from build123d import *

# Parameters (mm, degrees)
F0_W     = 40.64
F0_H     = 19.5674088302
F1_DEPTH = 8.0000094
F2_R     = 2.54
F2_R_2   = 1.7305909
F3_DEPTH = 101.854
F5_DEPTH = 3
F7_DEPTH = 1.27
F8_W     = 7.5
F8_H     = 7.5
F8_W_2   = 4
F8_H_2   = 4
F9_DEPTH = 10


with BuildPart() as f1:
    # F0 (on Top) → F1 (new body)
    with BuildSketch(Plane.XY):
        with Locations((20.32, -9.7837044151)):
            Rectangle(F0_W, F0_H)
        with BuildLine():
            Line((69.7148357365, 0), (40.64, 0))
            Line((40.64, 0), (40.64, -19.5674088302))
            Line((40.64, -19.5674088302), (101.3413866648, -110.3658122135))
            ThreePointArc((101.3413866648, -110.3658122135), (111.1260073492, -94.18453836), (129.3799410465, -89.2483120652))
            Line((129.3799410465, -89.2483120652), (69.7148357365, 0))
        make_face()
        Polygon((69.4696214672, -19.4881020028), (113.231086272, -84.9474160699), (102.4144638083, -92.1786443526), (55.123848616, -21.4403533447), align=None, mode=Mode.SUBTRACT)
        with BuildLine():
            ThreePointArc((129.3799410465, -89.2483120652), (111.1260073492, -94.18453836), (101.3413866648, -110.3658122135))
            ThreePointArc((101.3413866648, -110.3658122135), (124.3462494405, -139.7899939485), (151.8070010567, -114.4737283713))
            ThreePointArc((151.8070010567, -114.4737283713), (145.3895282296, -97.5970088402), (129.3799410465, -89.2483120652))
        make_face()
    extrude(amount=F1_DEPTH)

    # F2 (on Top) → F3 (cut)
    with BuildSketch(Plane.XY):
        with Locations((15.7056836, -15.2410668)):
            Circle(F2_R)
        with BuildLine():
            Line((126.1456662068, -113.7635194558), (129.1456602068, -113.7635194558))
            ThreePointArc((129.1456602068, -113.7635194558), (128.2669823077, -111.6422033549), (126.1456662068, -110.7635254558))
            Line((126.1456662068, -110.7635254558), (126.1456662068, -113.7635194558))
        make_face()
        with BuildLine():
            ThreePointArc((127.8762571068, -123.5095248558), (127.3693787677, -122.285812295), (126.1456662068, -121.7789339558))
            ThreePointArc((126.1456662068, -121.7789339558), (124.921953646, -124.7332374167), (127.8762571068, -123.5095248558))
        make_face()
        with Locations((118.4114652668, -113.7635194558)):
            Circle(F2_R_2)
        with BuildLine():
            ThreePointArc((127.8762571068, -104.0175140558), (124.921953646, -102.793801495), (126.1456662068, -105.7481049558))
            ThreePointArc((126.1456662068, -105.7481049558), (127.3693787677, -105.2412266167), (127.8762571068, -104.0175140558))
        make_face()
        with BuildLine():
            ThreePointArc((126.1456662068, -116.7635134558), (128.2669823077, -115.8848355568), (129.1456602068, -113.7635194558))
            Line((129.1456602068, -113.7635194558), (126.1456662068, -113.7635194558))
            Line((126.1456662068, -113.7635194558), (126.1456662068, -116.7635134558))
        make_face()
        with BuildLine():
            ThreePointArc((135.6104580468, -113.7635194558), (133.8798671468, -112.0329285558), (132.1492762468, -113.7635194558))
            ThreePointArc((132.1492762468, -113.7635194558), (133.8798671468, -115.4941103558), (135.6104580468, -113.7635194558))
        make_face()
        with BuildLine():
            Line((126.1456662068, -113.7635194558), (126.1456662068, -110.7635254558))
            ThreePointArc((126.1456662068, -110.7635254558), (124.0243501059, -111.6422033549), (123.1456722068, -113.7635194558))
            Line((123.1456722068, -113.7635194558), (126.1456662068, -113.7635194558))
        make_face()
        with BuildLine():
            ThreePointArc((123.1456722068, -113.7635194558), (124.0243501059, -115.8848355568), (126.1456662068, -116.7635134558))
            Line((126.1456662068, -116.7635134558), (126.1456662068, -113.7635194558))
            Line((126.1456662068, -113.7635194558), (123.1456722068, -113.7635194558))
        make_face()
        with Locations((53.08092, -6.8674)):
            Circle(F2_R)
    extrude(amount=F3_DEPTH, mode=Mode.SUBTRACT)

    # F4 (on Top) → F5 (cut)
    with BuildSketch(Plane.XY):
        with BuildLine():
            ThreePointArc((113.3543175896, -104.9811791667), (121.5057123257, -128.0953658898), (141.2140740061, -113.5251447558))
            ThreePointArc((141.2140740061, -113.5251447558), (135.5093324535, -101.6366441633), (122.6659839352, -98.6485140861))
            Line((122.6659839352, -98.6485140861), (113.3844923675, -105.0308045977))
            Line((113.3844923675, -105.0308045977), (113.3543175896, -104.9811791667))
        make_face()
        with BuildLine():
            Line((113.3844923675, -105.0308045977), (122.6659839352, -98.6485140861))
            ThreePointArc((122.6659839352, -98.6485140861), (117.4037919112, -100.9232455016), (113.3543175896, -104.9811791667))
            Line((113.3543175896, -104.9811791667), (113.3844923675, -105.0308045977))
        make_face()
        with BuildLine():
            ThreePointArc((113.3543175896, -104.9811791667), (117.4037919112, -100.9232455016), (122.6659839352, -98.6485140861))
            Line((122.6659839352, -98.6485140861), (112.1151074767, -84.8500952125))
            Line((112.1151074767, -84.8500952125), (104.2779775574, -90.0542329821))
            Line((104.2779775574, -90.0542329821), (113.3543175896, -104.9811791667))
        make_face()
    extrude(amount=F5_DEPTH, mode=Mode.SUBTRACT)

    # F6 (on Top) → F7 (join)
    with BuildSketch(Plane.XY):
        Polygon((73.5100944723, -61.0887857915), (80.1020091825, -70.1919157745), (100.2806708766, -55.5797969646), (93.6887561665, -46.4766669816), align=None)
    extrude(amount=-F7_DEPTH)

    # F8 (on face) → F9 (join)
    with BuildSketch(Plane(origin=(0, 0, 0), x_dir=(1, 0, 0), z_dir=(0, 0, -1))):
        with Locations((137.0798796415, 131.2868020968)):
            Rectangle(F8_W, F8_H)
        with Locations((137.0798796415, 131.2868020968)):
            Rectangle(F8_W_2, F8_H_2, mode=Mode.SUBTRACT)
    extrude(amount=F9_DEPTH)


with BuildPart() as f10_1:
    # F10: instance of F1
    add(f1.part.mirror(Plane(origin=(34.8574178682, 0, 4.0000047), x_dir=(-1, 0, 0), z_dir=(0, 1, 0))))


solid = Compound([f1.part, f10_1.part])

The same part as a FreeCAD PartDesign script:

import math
import FreeCAD as App
import Part
import Sketcher

V = App.Vector
Q = App.Units.Quantity

doc = App.newDocument("Part")
params = doc.addObject("Spreadsheet::Sheet", "Params")
for row, (alias, value) in enumerate([
    ("sketch1_radius", "1 in"),
    ("sketch1_width", "1.6 in"),
    ("sketch1_length", "4.3 in"),
    ("sketch1_length2", "3.1 in"),
    ("sketch1_length3", "0.57 in"),
    ("pad1_length", "8.000009 mm"),
    ("sketch2_diameter", "0.2 in"),
    ("pocket1_length", "4.01 in"),
    ("sketch3_radius", "0.6 in"),
    ("pocket2_length", "3 mm"),
    ("pad2_length", "0.05 in"),
    ("pad3_length", "10 mm"),
], start=1):
    params.set(f"A{row}", alias)
    params.set(f"B{row}", "=" + value)
    params.setAlias(f"B{row}", alias)

body = doc.addObject("PartDesign::Body", "Body")

# Sketch on XY plane
sketch1 = body.newObject("Sketcher::SketchObject", "Sketch")
sketch1.AttachmentSupport = (doc.getObject("XY_Plane"), [""])
sketch1.MapMode = "FlatFace"
sketch1.addGeometry([
    Part.LineSegment(V(0, 0, 0), V(0, -20, 0)),  # 0
    Part.LineSegment(V(0, -20, 0), V(41, -20, 0)),  # 1
    Part.LineSegment(V(41, -20, 0), V(101, -110, 0)),  # 2
    Part.ArcOfCircle(Part.Circle(V(126, -114, 0), V(0, 0, 1), 25), math.radians(171), math.radians(360)),  # 3
    Part.ArcOfCircle(Part.Circle(V(126, -114, 0), V(0, 0, 1), 25), math.radians(0), math.radians(83)),  # 4
    Part.LineSegment(V(129, -89, 0), V(70, 0, 0)),  # 5
    Part.LineSegment(V(70, 0, 0), V(0, 0, 0)),  # 6
    Part.LineSegment(V(55, -21, 0), V(69, -19, 0)),  # 7
    Part.LineSegment(V(69, -19, 0), V(113, -85, 0)),  # 8
    Part.LineSegment(V(113, -85, 0), V(102, -92, 0)),  # 9
    Part.LineSegment(V(102, -92, 0), V(55, -21, 0)),  # 10
], False)
sketch1.addConstraint([
    Sketcher.Constraint("Coincident", 0, 2, 1, 1),
    Sketcher.Constraint("Coincident", 1, 2, 2, 1),
    Sketcher.Constraint("Coincident", 2, 2, 3, 1),
    Sketcher.Constraint("Tangent", 3, 2, 4, 1),
    Sketcher.Constraint("Coincident", 4, 2, 5, 1),
    Sketcher.Constraint("Coincident", 5, 2, 6, 1),
    Sketcher.Constraint("Coincident", 6, 2, 0, 1),
    Sketcher.Constraint("Coincident", 7, 2, 8, 1),
    Sketcher.Constraint("Coincident", 8, 2, 9, 1),
    Sketcher.Constraint("Coincident", 9, 2, 10, 1),
    Sketcher.Constraint("Coincident", 10, 2, 7, 1),
    Sketcher.Constraint("Vertical", 0),
    Sketcher.Constraint("Horizontal", 1),
    Sketcher.Constraint("Horizontal", 6),
    Sketcher.Constraint("Coincident", 6, 2, -1, 1),
    Sketcher.Constraint("Equal", 3, 4),
    Sketcher.Constraint("Parallel", 2, 5),
    Sketcher.Constraint("Parallel", 5, 8),
    Sketcher.Constraint("Perpendicular", 8, 9),
    Sketcher.Constraint("Perpendicular", 9, 10),
    Sketcher.Constraint("Horizontal", 4, 3, 3, 2),
    Sketcher.Constraint("Radius", 3, Q("1 in")),
    Sketcher.Constraint("DistanceX", 1, 1, 1, 2, Q("1.6 in")),
    Sketcher.Constraint("Distance", 2, Q("4.3 in")),
    Sketcher.Constraint("Distance", 8, Q("3.1 in")),
    Sketcher.Constraint("Distance", 7, Q("0.57 in")),
    Sketcher.Constraint("Distance", 10, Q("3.35 in")),
    Sketcher.Constraint("DistanceY", 0, 2, 0, 1, Q("19.567409 mm")),
    Sketcher.Constraint("DistanceX", -1, 1, 3, 3, Q("126.407001 mm")),
    Sketcher.Constraint("DistanceY", 2, 2, 4, 2, Q("21.1175 mm")),
    Sketcher.Constraint("DistanceX", 2, 2, 8, 2, Q("11.8897 mm")),
    Sketcher.Constraint("DistanceX", 6, 2, 6, 1, Q("69.714836 mm")),
    Sketcher.Constraint("DistanceY", 4, 2, 7, 2, Q("69.76021 mm")),
])
sketch1.setExpression("Constraints[21]", "Params.sketch1_radius")
sketch1.setExpression("Constraints[22]", "Params.sketch1_width")
sketch1.setExpression("Constraints[23]", "Params.sketch1_length")
sketch1.setExpression("Constraints[24]", "Params.sketch1_length2")
sketch1.setExpression("Constraints[25]", "Params.sketch1_length3")
pad1 = body.newObject("PartDesign::Pad", "Pad")
pad1.Profile = sketch1
pad1.setExpression("Length", "Params.pad1_length")

# Sketch on XY plane
sketch2 = body.newObject("Sketcher::SketchObject", "Sketch001")
sketch2.AttachmentSupport = (doc.getObject("XY_Plane"), [""])
sketch2.MapMode = "FlatFace"
sketch2.addGeometry([
    Part.Circle(V(15.7, -15.2, 0), V(0, 0, 1), 2.5),  # 0
    Part.ArcOfCircle(Part.Circle(V(126.1, -113.8, 0), V(0, 0, 1), 3), math.radians(0), math.radians(90)),  # 1
    Part.ArcOfCircle(Part.Circle(V(126.1, -113.8, 0), V(0, 0, 1), 3), math.radians(90), math.radians(180)),  # 2
    Part.ArcOfCircle(Part.Circle(V(126.1, -113.8, 0), V(0, 0, 1), 3), math.radians(180), math.radians(270)),  # 3
    Part.ArcOfCircle(Part.Circle(V(126.1, -113.8, 0), V(0, 0, 1), 3), math.radians(-90), math.radians(0)),  # 4
    Part.Circle(V(126.1, -123.5, 0), V(0, 0, 1), 1.7),  # 5
    Part.Circle(V(118.4, -113.8, 0), V(0, 0, 1), 1.7),  # 6
    Part.ArcOfCircle(Part.Circle(V(126.1, -104, 0), V(0, 0, 1), 1.7), math.radians(0), math.radians(270)),  # 7
    Part.ArcOfCircle(Part.Circle(V(126.1, -104, 0), V(0, 0, 1), 1.7), math.radians(-90), math.radians(0)),  # 8
    Part.Circle(V(133.9, -113.8, 0), V(0, 0, 1), 1.7),  # 9
    Part.Circle(V(53.1, -6.9, 0), V(0, 0, 1), 2.5),  # 10
], False)
sketch2.addConstraint([
    Sketcher.Constraint("Tangent", 1, 2, 2, 1),
    Sketcher.Constraint("Tangent", 2, 2, 3, 1),
    Sketcher.Constraint("Tangent", 3, 2, 4, 1),
    Sketcher.Constraint("Tangent", 4, 2, 1, 1),
    Sketcher.Constraint("Tangent", 7, 1, 8, 2),
    Sketcher.Constraint("Coincident", 8, 1, 7, 2),
    Sketcher.Constraint("Equal", 1, 2),
    Sketcher.Constraint("Equal", 5, 6),
    Sketcher.Constraint("Equal", 6, 7),
    Sketcher.Constraint("Equal", 8, 9),
    Sketcher.Constraint("Equal", 0, 10),
    Sketcher.Constraint("Horizontal", 4, 3, 6, 3),
    Sketcher.Constraint("Horizontal", 6, 3, 9, 3),
    Sketcher.Constraint("Horizontal", 9, 3, 2, 2),
    Sketcher.Constraint("Horizontal", 2, 2, 4, 2),
    Sketcher.Constraint("Horizontal", 8, 3, 7, 1),
    Sketcher.Constraint("Vertical", 4, 3, 5, 3),
    Sketcher.Constraint("Vertical", 5, 3, 7, 3),
    Sketcher.Constraint("Vertical", 8, 3, 1, 2),
    Sketcher.Constraint("Vertical", 1, 2, 3, 2),
    Sketcher.Constraint("Vertical", 3, 2, 8, 1),
    Sketcher.Constraint("Diameter", 0, Q("0.2 in")),
    Sketcher.Constraint("Diameter", 5, Q("3.461182 mm")),
    Sketcher.Constraint("DistanceX", -1, 1, 10, 3, Q("2.0898 in")),
    Sketcher.Constraint("Radius", 1, Q("2.999994 mm")),
    Sketcher.Constraint("DistanceY", 10, 3, -1, 1, Q("6.8674 mm")),
    Sketcher.Constraint("DistanceX", 6, 3, 1, 3, Q("7.734201 mm")),
    Sketcher.Constraint("DistanceX", 1, 3, 9, 3, Q("7.734201 mm")),
    Sketcher.Constraint("DistanceY", 1, 3, -1, 1, Q("113.763519 mm")),
    Sketcher.Constraint("DistanceX", -1, 1, 4, 2, Q("129.14566 mm")),
    Sketcher.Constraint("DistanceY", 5, 3, 0, 3, Q("108.268458 mm")),
    Sketcher.Constraint("DistanceY", 1, 2, 7, 3, Q("6.746011 mm")),
    Sketcher.Constraint("DistanceX", -1, 1, 0, 3, Q("15.705684 mm")),
    Sketcher.Constraint("DistanceY", 0, 3, -1, 1, Q("15.241067 mm")),
])
sketch2.setExpression("Constraints[21]", "Params.sketch2_diameter")
pocket1 = body.newObject("PartDesign::Pocket", "Pocket")
pocket1.Profile = sketch2
pocket1.setExpression("Length", "Params.pocket1_length")
pocket1.Reversed = True

# Sketch on XY plane
sketch3 = body.newObject("Sketcher::SketchObject", "Sketch002")
sketch3.AttachmentSupport = (doc.getObject("XY_Plane"), [""])
sketch3.MapMode = "FlatFace"
sketch3.addGeometry([
    Part.ArcOfCircle(Part.Circle(V(126, -114, 0), V(0, 0, 1), 15), math.radians(146), math.radians(360)),  # 0
    Part.ArcOfCircle(Part.Circle(V(126, -114, 0), V(0, 0, 1), 15), math.radians(0), math.radians(103)),  # 1
    Part.LineSegment(V(123, -99, 0), V(112, -85, 0)),  # 2
    Part.LineSegment(V(112, -85, 0), V(104, -90, 0)),  # 3
    Part.LineSegment(V(104, -90, 0), V(113, -105, 0)),  # 4
], False)
sketch3.addConstraint([
    Sketcher.Constraint("Tangent", 0, 2, 1, 1),
    Sketcher.Constraint("Coincident", 1, 2, 2, 1),
    Sketcher.Constraint("Coincident", 2, 2, 3, 1),
    Sketcher.Constraint("Coincident", 3, 2, 4, 1),
    Sketcher.Constraint("Coincident", 4, 2, 0, 1),
    Sketcher.Constraint("Equal", 0, 1),
    Sketcher.Constraint("Horizontal", 1, 3, 0, 2),
    Sketcher.Constraint("Radius", 0, Q("0.6 in")),
    Sketcher.Constraint("Distance", 3, Q("9.407638 mm")),
    Sketcher.Constraint("DistanceY", 4, 2, -1, 1, Q("104.981179 mm")),
    Sketcher.Constraint("DistanceX", 1, 2, 0, 3, Q("3.30809 mm")),
    Sketcher.Constraint("DistanceY", 1, 2, 2, 2, Q("13.798419 mm")),
    Sketcher.Constraint("DistanceX", 3, 2, 2, 2, Q("7.83713 mm")),
    Sketcher.Constraint("DistanceX", 3, 2, 4, 2, Q("9.07634 mm")),
    Sketcher.Constraint("Distance", 2, Q("17.370013 mm")),
    Sketcher.Constraint("DistanceX", -1, 1, 0, 3, Q("125.974074 mm")),
])
sketch3.setExpression("Constraints[7]", "Params.sketch3_radius")
pocket2 = body.newObject("PartDesign::Pocket", "Pocket001")
pocket2.Profile = sketch3
pocket2.setExpression("Length", "Params.pocket2_length")
pocket2.Reversed = True

# Sketch on XY plane
sketch4 = body.newObject("Sketcher::SketchObject", "Sketch003")
sketch4.AttachmentSupport = (doc.getObject("XY_Plane"), [""])
sketch4.MapMode = "FlatFace"
sketch4.addGeometry([
    Part.LineSegment(V(74, -61, 0), V(80, -70, 0)),
    Part.LineSegment(V(80, -70, 0), V(100, -56, 0)),
    Part.LineSegment(V(100, -56, 0), V(94, -46, 0)),
    Part.LineSegment(V(94, -46, 0), V(74, -61, 0)),
], False)
sketch4.addConstraint([
    Sketcher.Constraint("Coincident", 0, 2, 1, 1),
    Sketcher.Constraint("Coincident", 1, 2, 2, 1),
    Sketcher.Constraint("Coincident", 2, 2, 3, 1),
    Sketcher.Constraint("Coincident", 3, 2, 0, 1),
    Sketcher.Constraint("Perpendicular", 0, 1),
    Sketcher.Constraint("Perpendicular", 1, 2),
    Sketcher.Constraint("Perpendicular", 2, 3),
    Sketcher.Constraint("Distance", 1, Q("24.913699 mm")),
    Sketcher.Constraint("Distance", 0, Q("11.239231 mm")),
    Sketcher.Constraint("DistanceX", -1, 1, 0, 2, Q("80.102009 mm")),
    Sketcher.Constraint("DistanceX", -1, 1, 1, 2, Q("100.280671 mm")),
    Sketcher.Constraint("DistanceY", 0, 2, -1, 1, Q("70.191916 mm")),
])
pad2 = body.newObject("PartDesign::Pad", "Pad001")
pad2.Profile = sketch4
pad2.setExpression("Length", "Params.pad2_length")
pad2.Reversed = True

# Sketch on XY plane
sketch5 = body.newObject("Sketcher::SketchObject", "Sketch004")
sketch5.AttachmentSupport = (doc.getObject("XY_Plane"), [""])
sketch5.MapMode = "FlatFace"
sketch5.addGeometry([
    Part.LineSegment(V(133.3, -135, 0), V(133.3, -127.5, 0)),  # 0
    Part.LineSegment(V(133.3, -127.5, 0), V(140.8, -127.5, 0)),  # 1
    Part.LineSegment(V(140.8, -127.5, 0), V(140.8, -135, 0)),  # 2
    Part.LineSegment(V(140.8, -135, 0), V(133.3, -135, 0)),  # 3
    Part.LineSegment(V(139.1, -129.3, 0), V(135.1, -129.3, 0)),  # 4
    Part.LineSegment(V(135.1, -129.3, 0), V(135.1, -133.3, 0)),  # 5
    Part.LineSegment(V(135.1, -133.3, 0), V(139.1, -133.3, 0)),  # 6
    Part.LineSegment(V(139.1, -133.3, 0), V(139.1, -129.3, 0)),  # 7
], False)
sketch5.addConstraint([
    Sketcher.Constraint("Coincident", 0, 2, 1, 1),
    Sketcher.Constraint("Coincident", 1, 2, 2, 1),
    Sketcher.Constraint("Coincident", 2, 2, 3, 1),
    Sketcher.Constraint("Coincident", 3, 2, 0, 1),
    Sketcher.Constraint("Coincident", 4, 2, 5, 1),
    Sketcher.Constraint("Coincident", 5, 2, 6, 1),
    Sketcher.Constraint("Coincident", 6, 2, 7, 1),
    Sketcher.Constraint("Coincident", 7, 2, 4, 1),
    Sketcher.Constraint("Vertical", 0),
    Sketcher.Constraint("Horizontal", 1),
    Sketcher.Constraint("Vertical", 2),
    Sketcher.Constraint("Horizontal", 3),
    Sketcher.Constraint("Horizontal", 4),
    Sketcher.Constraint("Vertical", 5),
    Sketcher.Constraint("Horizontal", 6),
    Sketcher.Constraint("Vertical", 7),
    Sketcher.Constraint("Equal", 3, 0),
    Sketcher.Constraint("Equal", 6, 5),
    Sketcher.Constraint("DistanceX", 1, 1, 1, 2, Q("7.5 mm")),
    Sketcher.Constraint("DistanceX", 4, 2, 4, 1, Q("4 mm")),
    Sketcher.Constraint("DistanceX", 0, 2, 4, 2, Q("1.75 mm")),
    Sketcher.Constraint("DistanceY", 4, 2, 0, 2, Q("1.75 mm")),
    Sketcher.Constraint("DistanceX", -1, 1, 0, 2, Q("133.32988 mm")),
    Sketcher.Constraint("DistanceY", 0, 2, -1, 1, Q("127.536802 mm")),
])
pad3 = body.newObject("PartDesign::Pad", "Pad002")
pad3.Profile = sketch5
pad3.setExpression("Length", "Params.pad3_length")
pad3.Reversed = True
body2 = doc.addObject("PartDesign::Body", "Body001")
doc.recompute()

mirroring = doc.addObject("Part::Mirroring", "Mirroring")
mirroring.Source = body
mirroring.Base = V(34.857418, 0, 4.000005)
mirroring.Normal = V(0, 1, 0)
body2.BaseFeature = mirroring
doc.recompute()
mirroring.Visibility = False

doc.recompute()
